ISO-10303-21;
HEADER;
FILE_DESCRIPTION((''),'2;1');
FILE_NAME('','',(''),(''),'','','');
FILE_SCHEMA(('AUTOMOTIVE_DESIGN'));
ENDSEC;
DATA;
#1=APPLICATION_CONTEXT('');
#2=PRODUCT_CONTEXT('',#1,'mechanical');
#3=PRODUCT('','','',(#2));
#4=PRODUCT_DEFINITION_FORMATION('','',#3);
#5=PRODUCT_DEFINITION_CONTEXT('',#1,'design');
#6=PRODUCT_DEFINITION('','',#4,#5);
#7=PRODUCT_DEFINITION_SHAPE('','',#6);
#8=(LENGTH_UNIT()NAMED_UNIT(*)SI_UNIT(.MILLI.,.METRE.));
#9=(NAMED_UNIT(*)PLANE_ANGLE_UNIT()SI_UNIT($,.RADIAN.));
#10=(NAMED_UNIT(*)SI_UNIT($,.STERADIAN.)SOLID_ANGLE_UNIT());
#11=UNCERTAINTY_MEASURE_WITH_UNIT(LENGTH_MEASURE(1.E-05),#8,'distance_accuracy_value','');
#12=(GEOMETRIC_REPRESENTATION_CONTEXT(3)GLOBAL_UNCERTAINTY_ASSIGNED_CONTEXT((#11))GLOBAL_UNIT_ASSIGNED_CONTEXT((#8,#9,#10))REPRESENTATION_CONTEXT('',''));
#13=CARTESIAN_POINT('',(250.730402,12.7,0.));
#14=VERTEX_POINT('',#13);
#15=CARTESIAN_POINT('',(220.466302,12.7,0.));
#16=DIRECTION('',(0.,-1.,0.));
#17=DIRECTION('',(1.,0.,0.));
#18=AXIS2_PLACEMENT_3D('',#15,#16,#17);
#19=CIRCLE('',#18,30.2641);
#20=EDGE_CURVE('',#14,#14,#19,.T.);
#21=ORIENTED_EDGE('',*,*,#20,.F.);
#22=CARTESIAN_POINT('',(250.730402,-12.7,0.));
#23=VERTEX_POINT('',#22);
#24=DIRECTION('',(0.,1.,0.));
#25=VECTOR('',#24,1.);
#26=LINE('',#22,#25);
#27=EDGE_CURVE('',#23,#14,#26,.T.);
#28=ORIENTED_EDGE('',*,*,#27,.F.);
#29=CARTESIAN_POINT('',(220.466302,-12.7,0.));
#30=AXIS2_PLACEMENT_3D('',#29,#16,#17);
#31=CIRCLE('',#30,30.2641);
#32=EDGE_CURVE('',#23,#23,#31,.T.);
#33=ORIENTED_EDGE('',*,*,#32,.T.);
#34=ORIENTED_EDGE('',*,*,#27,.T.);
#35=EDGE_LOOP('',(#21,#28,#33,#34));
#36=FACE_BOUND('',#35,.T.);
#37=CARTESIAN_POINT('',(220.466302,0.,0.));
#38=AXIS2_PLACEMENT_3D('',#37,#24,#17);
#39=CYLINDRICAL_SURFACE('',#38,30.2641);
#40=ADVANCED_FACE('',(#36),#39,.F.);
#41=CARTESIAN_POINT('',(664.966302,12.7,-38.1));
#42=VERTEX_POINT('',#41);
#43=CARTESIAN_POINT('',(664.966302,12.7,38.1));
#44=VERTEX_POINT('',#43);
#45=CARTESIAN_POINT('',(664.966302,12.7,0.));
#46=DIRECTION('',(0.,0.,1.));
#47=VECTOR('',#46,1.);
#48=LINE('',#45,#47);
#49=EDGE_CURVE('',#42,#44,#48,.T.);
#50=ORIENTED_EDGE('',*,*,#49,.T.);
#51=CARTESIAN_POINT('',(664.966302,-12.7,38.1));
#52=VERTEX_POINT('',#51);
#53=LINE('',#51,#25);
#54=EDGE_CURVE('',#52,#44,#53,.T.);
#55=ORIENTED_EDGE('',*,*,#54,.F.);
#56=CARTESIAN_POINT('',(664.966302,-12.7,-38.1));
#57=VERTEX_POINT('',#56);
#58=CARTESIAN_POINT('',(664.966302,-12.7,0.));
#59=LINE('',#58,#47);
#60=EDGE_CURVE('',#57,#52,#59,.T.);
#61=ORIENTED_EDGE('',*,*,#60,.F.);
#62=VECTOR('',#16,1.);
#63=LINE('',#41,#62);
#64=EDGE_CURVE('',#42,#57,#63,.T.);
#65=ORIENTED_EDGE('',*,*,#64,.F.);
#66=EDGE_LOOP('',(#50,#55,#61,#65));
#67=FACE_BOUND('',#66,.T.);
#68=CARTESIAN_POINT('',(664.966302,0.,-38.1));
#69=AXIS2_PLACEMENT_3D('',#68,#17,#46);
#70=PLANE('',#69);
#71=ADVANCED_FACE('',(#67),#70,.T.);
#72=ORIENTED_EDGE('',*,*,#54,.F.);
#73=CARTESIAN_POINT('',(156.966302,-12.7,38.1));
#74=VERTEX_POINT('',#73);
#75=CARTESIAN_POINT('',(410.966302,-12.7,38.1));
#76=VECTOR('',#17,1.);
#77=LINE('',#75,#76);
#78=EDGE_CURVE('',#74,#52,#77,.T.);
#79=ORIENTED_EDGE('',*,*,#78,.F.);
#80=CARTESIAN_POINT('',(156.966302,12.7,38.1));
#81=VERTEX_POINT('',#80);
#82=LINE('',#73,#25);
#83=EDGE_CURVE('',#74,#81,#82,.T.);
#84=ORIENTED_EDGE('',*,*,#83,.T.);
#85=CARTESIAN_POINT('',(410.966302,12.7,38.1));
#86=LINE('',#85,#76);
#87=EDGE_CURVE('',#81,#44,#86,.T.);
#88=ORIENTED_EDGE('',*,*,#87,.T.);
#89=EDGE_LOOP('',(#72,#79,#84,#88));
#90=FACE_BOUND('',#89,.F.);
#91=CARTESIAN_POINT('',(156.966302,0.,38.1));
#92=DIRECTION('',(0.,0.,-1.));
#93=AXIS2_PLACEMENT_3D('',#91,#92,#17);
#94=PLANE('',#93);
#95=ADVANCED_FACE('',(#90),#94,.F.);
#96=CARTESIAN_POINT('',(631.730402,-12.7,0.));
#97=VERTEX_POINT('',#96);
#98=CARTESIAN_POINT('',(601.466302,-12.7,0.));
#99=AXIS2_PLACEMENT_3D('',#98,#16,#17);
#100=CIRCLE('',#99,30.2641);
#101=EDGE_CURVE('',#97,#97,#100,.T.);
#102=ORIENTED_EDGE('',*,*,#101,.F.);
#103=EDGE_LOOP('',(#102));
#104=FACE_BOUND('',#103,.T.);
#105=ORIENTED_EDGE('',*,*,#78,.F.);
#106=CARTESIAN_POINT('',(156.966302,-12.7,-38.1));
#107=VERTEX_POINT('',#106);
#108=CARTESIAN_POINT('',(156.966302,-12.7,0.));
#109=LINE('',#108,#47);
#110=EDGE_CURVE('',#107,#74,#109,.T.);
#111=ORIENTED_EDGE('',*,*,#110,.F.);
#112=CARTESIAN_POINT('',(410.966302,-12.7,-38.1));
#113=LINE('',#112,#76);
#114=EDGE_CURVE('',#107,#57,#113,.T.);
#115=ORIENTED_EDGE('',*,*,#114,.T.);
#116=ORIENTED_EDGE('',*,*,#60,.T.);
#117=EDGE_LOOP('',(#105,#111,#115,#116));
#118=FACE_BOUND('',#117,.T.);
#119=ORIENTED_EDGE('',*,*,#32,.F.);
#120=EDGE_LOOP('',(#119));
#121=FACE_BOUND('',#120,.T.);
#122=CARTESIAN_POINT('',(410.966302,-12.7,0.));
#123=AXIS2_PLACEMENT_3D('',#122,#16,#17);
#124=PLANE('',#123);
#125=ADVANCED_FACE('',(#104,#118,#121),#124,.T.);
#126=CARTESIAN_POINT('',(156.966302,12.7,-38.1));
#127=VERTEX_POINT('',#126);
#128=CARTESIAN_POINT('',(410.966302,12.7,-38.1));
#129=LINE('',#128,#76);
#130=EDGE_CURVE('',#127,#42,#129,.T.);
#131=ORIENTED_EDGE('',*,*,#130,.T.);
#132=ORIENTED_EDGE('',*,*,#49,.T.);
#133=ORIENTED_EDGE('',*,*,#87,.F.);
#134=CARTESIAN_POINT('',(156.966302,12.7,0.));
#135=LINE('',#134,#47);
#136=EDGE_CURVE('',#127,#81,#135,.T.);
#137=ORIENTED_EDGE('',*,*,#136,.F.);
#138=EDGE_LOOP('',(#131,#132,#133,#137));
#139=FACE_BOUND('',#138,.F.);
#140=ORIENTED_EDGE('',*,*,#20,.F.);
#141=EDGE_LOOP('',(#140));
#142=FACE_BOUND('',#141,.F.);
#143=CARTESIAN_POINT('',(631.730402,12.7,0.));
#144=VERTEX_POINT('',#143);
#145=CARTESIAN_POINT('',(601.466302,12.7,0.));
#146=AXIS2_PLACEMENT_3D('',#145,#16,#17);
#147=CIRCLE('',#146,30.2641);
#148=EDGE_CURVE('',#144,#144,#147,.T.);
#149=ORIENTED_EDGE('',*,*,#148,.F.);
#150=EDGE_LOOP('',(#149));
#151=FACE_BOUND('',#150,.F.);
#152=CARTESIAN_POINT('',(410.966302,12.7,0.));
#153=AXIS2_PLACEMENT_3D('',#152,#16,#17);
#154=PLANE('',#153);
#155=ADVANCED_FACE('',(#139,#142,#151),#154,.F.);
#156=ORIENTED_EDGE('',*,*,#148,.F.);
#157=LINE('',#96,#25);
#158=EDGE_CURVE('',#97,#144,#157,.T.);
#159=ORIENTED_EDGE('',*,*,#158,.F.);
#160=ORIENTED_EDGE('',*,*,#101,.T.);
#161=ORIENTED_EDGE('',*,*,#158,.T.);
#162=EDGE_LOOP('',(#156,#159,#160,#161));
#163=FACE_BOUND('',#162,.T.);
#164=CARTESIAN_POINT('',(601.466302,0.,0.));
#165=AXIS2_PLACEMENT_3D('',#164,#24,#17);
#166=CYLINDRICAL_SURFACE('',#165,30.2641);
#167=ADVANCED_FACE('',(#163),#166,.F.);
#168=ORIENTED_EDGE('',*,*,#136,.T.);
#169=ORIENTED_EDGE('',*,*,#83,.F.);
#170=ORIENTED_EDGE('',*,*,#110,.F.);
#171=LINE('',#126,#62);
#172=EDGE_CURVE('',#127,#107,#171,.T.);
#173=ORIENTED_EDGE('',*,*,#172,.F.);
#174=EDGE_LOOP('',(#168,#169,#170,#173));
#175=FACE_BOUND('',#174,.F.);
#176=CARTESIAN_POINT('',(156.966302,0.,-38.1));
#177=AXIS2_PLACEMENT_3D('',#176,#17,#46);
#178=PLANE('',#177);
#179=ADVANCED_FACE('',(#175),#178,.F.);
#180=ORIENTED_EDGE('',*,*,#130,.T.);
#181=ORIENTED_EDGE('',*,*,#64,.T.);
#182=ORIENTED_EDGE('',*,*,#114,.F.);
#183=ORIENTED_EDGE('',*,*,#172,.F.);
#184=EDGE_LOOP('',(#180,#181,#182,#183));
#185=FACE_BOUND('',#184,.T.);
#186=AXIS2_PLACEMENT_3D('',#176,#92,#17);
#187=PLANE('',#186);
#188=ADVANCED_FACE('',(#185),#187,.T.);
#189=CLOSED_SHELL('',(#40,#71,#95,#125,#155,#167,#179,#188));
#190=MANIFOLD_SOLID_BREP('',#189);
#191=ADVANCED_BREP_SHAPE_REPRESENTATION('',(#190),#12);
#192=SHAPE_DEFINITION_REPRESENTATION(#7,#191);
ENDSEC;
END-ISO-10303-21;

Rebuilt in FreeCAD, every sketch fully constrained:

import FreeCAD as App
import Part
import Sketcher

V = App.Vector
Q = App.Units.Quantity

doc = App.newDocument("Part")
params = doc.addObject("Spreadsheet::Sheet", "Params")
for row, (alias, value) in enumerate([
    ("sketch1_width", "20 in"),
    ("sketch1_height", "3 in"),
    ("sketch1_diameter", "2.383 in"),
    ("pad1_length", "1 in"),
], start=1):
    params.set(f"A{row}", alias)
    params.set(f"B{row}", "=" + value)
    params.setAlias(f"B{row}", alias)

body = doc.addObject("PartDesign::Body", "Body")

# Sketch on XZ plane
sketch1 = doc.addObject("Sketcher::SketchObject", "Sketch")
body.addObject(sketch1)
sketch1.AttachmentSupport = (doc.XZ_Plane, [""])
sketch1.MapMode = "FlatFace"
sketch1.addGeometry([
    Part.LineSegment(V(157, 38, 0), V(157, -38, 0)),  # 0
    Part.LineSegment(V(157, -38, 0), V(665, -38, 0)),  # 1
    Part.LineSegment(V(665, -38, 0), V(665, 38, 0)),  # 2
    Part.LineSegment(V(665, 38, 0), V(157, 38, 0)),  # 3
    Part.Circle(V(220, 0, 0), V(0, 0, 1), 30),  # 4
    Part.Circle(V(601, 0, 0), V(0, 0, 1), 30),  # 5
], False)
sketch1.addConstraint([
    Sketcher.Constraint("Coincident", 0, 2, 1, 1),
    Sketcher.Constraint("Coincident", 1, 2, 2, 1),
    Sketcher.Constraint("Coincident", 2, 2, 3, 1),
    Sketcher.Constraint("Coincident", 3, 2, 0, 1),
    Sketcher.Constraint("Vertical", 0),
    Sketcher.Constraint("Horizontal", 1),
    Sketcher.Constraint("Vertical", 2),
    Sketcher.Constraint("Horizontal", 3),
    Sketcher.Constraint("Equal", 4, 5),
    Sketcher.Constraint("PointOnObject", 4, 3, -1),
    Sketcher.Constraint("PointOnObject", 5, 3, -1),
    Sketcher.Constraint("DistanceX", 1, 1, 1, 2, Q("20 in")),
    Sketcher.Constraint("DistanceY", 0, 2, 0, 1, Q("3 in")),
    Sketcher.Constraint("Diameter", 4, Q("2.383 in")),
    Sketcher.Constraint("DistanceX", 4, 3, 5, 3, Q("15 in")),
    Sketcher.Constraint("DistanceY", 0, 2, -1, 1, Q("1.5 in")),
    Sketcher.Constraint("DistanceX", 0, 2, 4, 3, Q("2.5 in")),
    Sketcher.Constraint("DistanceX", -1, 1, 5, 3, 601.466302),
])
sketch1.setExpression("Constraints[11]", "Params.sketch1_width")
sketch1.setExpression("Constraints[12]", "Params.sketch1_height")
sketch1.setExpression("Constraints[13]", "Params.sketch1_diameter")
pad1 = doc.addObject("PartDesign::Pad", "Pad")
body.addObject(pad1)
pad1.Profile = sketch1
pad1.setExpression("Length", "Params.pad1_length")
pad1.Midplane = True

doc.recompute()
